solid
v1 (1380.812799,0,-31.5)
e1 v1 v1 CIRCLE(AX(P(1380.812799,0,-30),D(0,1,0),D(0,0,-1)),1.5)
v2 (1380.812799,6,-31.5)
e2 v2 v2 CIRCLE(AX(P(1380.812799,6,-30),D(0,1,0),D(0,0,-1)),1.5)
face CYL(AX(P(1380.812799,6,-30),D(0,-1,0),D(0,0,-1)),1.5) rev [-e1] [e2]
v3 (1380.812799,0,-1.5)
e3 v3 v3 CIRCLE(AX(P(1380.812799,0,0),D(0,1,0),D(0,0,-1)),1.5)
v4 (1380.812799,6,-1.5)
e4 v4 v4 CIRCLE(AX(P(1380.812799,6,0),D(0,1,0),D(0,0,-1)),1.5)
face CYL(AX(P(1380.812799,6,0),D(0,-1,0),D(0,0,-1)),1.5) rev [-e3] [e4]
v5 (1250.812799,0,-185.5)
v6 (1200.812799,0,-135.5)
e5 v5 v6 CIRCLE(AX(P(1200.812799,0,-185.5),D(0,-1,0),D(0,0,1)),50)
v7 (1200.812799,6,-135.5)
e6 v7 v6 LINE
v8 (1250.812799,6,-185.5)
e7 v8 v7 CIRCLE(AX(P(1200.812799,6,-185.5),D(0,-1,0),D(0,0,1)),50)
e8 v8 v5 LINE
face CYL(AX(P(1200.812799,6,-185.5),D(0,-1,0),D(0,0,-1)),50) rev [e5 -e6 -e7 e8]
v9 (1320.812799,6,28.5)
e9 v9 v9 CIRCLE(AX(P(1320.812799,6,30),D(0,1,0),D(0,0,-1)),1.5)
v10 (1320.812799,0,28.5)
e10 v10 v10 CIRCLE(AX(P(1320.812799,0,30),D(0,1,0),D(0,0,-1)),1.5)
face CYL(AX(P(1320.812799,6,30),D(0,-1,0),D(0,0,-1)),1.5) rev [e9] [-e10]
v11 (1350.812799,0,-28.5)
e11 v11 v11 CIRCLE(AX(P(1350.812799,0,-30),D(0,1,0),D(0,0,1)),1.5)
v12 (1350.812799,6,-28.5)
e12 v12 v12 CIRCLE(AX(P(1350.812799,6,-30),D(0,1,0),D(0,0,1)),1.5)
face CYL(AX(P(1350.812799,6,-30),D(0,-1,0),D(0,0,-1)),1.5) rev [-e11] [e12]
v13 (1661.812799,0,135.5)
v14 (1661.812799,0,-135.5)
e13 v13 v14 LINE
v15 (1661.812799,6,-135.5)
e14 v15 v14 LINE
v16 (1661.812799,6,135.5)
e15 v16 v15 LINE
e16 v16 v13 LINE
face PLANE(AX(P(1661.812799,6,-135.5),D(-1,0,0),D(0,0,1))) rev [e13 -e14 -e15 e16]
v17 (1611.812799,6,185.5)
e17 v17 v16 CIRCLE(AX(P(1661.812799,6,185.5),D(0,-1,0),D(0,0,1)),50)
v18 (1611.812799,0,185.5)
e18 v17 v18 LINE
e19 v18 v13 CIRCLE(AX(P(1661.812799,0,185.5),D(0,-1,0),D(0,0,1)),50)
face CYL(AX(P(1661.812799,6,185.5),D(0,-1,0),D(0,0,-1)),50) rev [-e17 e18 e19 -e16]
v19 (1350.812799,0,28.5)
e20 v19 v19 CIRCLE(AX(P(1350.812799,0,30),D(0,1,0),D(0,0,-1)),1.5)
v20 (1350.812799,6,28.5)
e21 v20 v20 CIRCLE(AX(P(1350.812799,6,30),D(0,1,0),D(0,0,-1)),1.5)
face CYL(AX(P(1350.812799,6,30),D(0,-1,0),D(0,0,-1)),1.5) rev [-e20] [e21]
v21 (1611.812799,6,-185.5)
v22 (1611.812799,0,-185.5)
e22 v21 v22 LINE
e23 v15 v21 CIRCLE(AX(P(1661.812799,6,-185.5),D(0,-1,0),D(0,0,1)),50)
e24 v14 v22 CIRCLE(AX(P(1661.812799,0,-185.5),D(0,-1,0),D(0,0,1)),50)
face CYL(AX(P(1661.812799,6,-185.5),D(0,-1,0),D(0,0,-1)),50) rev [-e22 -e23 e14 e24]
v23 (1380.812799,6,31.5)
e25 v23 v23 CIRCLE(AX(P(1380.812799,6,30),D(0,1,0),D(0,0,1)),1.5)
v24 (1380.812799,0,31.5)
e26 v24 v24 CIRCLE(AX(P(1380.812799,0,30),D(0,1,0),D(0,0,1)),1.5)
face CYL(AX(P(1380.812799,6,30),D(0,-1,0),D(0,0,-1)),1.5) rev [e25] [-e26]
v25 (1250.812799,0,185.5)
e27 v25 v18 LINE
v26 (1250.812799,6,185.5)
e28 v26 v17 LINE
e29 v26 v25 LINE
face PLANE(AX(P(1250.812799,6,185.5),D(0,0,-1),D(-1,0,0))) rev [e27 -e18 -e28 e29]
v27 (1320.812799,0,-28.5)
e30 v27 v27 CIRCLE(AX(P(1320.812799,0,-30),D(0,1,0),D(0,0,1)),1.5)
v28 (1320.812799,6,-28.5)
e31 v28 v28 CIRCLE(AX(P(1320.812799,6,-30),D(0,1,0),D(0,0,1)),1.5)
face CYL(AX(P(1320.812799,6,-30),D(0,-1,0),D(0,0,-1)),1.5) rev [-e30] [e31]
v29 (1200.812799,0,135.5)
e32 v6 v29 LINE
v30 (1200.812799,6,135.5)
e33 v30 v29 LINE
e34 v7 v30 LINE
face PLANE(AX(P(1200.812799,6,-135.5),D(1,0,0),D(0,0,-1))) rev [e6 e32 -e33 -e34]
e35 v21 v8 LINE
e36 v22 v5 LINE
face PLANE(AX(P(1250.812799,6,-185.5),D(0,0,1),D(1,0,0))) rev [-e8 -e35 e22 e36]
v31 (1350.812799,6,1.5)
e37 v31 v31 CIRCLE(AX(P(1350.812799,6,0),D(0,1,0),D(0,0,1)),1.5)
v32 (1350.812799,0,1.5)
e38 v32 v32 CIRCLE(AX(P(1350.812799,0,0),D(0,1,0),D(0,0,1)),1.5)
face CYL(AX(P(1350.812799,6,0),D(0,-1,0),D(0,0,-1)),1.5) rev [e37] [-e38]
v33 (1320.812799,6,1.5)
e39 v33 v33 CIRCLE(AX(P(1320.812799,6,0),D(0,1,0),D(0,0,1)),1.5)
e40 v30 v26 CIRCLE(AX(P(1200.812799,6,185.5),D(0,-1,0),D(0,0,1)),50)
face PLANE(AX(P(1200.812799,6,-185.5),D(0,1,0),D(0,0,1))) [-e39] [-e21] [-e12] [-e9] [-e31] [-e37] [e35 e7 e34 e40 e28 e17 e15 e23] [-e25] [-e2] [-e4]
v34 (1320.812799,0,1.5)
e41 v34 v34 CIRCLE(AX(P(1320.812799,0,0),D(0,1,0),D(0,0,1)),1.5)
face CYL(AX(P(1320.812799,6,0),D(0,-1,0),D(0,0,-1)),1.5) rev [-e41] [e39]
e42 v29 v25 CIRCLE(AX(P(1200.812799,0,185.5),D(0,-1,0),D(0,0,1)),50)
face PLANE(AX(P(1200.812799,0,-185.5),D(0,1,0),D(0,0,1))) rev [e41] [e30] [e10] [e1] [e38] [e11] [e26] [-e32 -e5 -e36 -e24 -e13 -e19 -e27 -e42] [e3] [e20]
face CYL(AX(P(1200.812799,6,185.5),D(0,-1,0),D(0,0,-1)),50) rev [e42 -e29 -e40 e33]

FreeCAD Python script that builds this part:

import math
import FreeCAD as App
import Part
import Sketcher
Q = App.Units.Quantity

doc = App.newDocument("Part")
params = doc.addObject("Spreadsheet::Sheet", "Params")
for row, (alias, value) in enumerate([
    ("sketch1_diameter", "3 mm"),
    ("sketch1_radius", "50 mm"),
    ("sketch1_width", "361 mm"),
    ("sketch1_height", "271 mm"),
    ("pad1_length", "6 mm"),
], start=1):
    params.set(f"A{row}", alias)
    params.set(f"B{row}", "=" + value)
    params.setAlias(f"B{row}", alias)

body = doc.addObject("PartDesign::Body", "Body")

# Sketch on XZ plane
sketch1 = doc.addObject("Sketcher::SketchObject", "Sketch")
body.addObject(sketch1)
sketch1.AttachmentSupport = (doc.XZ_Plane, [""])
sketch1.MapMode = "FlatFace"
sketch1.addGeometry(Part.LineSegment(App.Vector(1611.8, -185.5, 0), App.Vector(1250.8, -185.5, 0)), False)
sketch1.addGeometry(Part.ArcOfCircle(Part.Circle(App.Vector(1200.8, -185.5, 0), App.Vector(0, 0, 1), 50), math.radians(0), math.radians(90)), False)
sketch1.addGeometry(Part.LineSegment(App.Vector(1200.8, -135.5, 0), App.Vector(1200.8, 135.5, 0)), False)
sketch1.addGeometry(Part.ArcOfCircle(Part.Circle(App.Vector(1200.8, 185.5, 0), App.Vector(0, 0, 1), 50), math.radians(-90), math.radians(0)), False)
sketch1.addGeometry(Part.LineSegment(App.Vector(1250.8, 185.5, 0), App.Vector(1611.8, 185.5, 0)), False)
sketch1.addGeometry(Part.ArcOfCircle(Part.Circle(App.Vector(1661.8, 185.5, 0), App.Vector(0, 0, 1), 50), math.radians(-180), math.radians(-90)), False)
sketch1.addGeometry(Part.LineSegment(App.Vector(1661.8, 135.5, 0), App.Vector(1661.8, -135.5, 0)), False)
sketch1.addGeometry(Part.ArcOfCircle(Part.Circle(App.Vector(1661.8, -185.5, 0), App.Vector(0, 0, 1), 50), math.radians(90), math.radians(180)), False)
sketch1.addGeometry(Part.Circle(App.Vector(1380.8, 30, 0), App.Vector(0, 0, 1), 1.5), False)
sketch1.addGeometry(Part.Circle(App.Vector(1350.8, 30, 0), App.Vector(0, 0, 1), 1.5), False)
sketch1.addGeometry(Part.Circle(App.Vector(1320.8, 30, 0), App.Vector(0, 0, 1), 1.5), False)
sketch1.addGeometry(Part.Circle(App.Vector(1380.8, 0, 0), App.Vector(0, 0, 1), 1.5), False)
sketch1.addGeometry(Part.Circle(App.Vector(1380.8, -30, 0), App.Vector(0, 0, 1), 1.5), False)
sketch1.addGeometry(Part.Circle(App.Vector(1350.8, 0, 0), App.Vector(0, 0, 1), 1.5), False)
sketch1.addGeometry(Part.Circle(App.Vector(1320.8, 0, 0), App.Vector(0, 0, 1), 1.5), False)
sketch1.addGeometry(Part.Circle(App.Vector(1350.8, -30, 0), App.Vector(0, 0, 1), 1.5), False)
sketch1.addGeometry(Part.Circle(App.Vector(1320.8, -30, 0), App.Vector(0, 0, 1), 1.5), False)
sketch1.addConstraint(Sketcher.Constraint("Coincident", 0, 2, 1, 1))
sketch1.addConstraint(Sketcher.Constraint("Coincident", 1, 2, 2, 1))
sketch1.addConstraint(Sketcher.Constraint("Coincident", 2, 2, 3, 1))
sketch1.addConstraint(Sketcher.Constraint("Coincident", 3, 2, 4, 1))
sketch1.addConstraint(Sketcher.Constraint("Coincident", 4, 2, 5, 1))
sketch1.addConstraint(Sketcher.Constraint("Coincident", 5, 2, 6, 1))
sketch1.addConstraint(Sketcher.Constraint("Coincident", 6, 2, 7, 1))
sketch1.addConstraint(Sketcher.Constraint("Coincident", 7, 2, 0, 1))
sketch1.addConstraint(Sketcher.Constraint("Horizontal", 0))
sketch1.addConstraint(Sketcher.Constraint("Vertical", 2))
sketch1.addConstraint(Sketcher.Constraint("Horizontal", 4))
sketch1.addConstraint(Sketcher.Constraint("Vertical", 6))
sketch1.addConstraint(Sketcher.Constraint("Equal", 1, 3))
sketch1.addConstraint(Sketcher.Constraint("Equal", 3, 5))
sketch1.addConstraint(Sketcher.Constraint("Equal", 5, 7))
sketch1.addConstraint(Sketcher.Constraint("Equal", 8, 9))
sketch1.addConstraint(Sketcher.Constraint("Equal", 9, 10))
sketch1.addConstraint(Sketcher.Constraint("Equal", 10, 11))
sketch1.addConstraint(Sketcher.Constraint("Equal", 11, 12))
sketch1.addConstraint(Sketcher.Constraint("Equal", 12, 13))
sketch1.addConstraint(Sketcher.Constraint("Equal", 13, 14))
sketch1.addConstraint(Sketcher.Constraint("Equal", 14, 15))
sketch1.addConstraint(Sketcher.Constraint("Equal", 15, 16))
sketch1.addConstraint(Sketcher.Constraint("Symmetric", 1, 3, 3, 3, -1))
sketch1.addConstraint(Sketcher.Constraint("Symmetric", 5, 3, 7, 3, -1))
sketch1.addConstraint(Sketcher.Constraint("Symmetric", 8, 3, 12, 3, -1))
sketch1.addConstraint(Sketcher.Constraint("Symmetric", 9, 3, 15, 3, -1))
sketch1.addConstraint(Sketcher.Constraint("Symmetric", 10, 3, 16, 3, -1))
sketch1.addConstraint(Sketcher.Constraint("PointOnObject", 11, 3, -1))
sketch1.addConstraint(Sketcher.Constraint("PointOnObject", 13, 3, -1))
sketch1.addConstraint(Sketcher.Constraint("PointOnObject", 14, 3, -1))
sketch1.addConstraint(Sketcher.Constraint("Horizontal", 3, 3, 5, 3))
sketch1.addConstraint(Sketcher.Constraint("Horizontal", 8, 3, 9, 3))
sketch1.addConstraint(Sketcher.Constraint("Horizontal", 9, 3, 10, 3))
sketch1.addConstraint(Sketcher.Constraint("Horizontal", 7, 3, 0, 2))
sketch1.addConstraint(Sketcher.Constraint("Horizontal", 5, 3, 3, 2))
sketch1.addConstraint(Sketcher.Constraint("Vertical", 8, 3, 11, 3))
sketch1.addConstraint(Sketcher.Constraint("Vertical", 9, 3, 13, 3))
sketch1.addConstraint(Sketcher.Constraint("Vertical", 10, 3, 14, 3))
sketch1.addConstraint(Sketcher.Constraint("Vertical", 3, 3, 1, 2))
sketch1.addConstraint(Sketcher.Constraint("Vertical", 7, 3, 5, 2))
sketch1.addConstraint(Sketcher.Constraint("Diameter", 8, Q("3 mm")))
sketch1.addConstraint(Sketcher.Constraint("Radius", 1, Q("50 mm")))
sketch1.addConstraint(Sketcher.Constraint("DistanceX", 0, 2, 0, 1, Q("361 mm")))
sketch1.addConstraint(Sketcher.Constraint("DistanceY", 2, 1, 2, 2, Q("271 mm")))
sketch1.addConstraint(Sketcher.Constraint("DistanceY", -1, 1, 8, 3, Q("30 mm")))
sketch1.addConstraint(Sketcher.Constraint("DistanceX", 3, 3, 8, 3, Q("180 mm")))
sketch1.addConstraint(Sketcher.Constraint("DistanceX", 9, 3, 8, 3, Q("30 mm")))
sketch1.addConstraint(Sketcher.Constraint("DistanceX", 10, 3, 9, 3, Q("30 mm")))
sketch1.addConstraint(Sketcher.Constraint("DistanceX", -1, 1, 1, 3, Q("1200.812799 mm")))
sketch1.setExpression("Constraints[41]", "Params.sketch1_diameter")
sketch1.setExpression("Constraints[42]", "Params.sketch1_radius")
sketch1.setExpression("Constraints[43]", "Params.sketch1_width")
sketch1.setExpression("Constraints[44]", "Params.sketch1_height")
pad1 = doc.addObject("PartDesign::Pad", "Pad")
body.addObject(pad1)
pad1.Profile = sketch1
pad1.setExpression("Length", "Params.pad1_length")
pad1.Reversed = True

doc.recompute()
